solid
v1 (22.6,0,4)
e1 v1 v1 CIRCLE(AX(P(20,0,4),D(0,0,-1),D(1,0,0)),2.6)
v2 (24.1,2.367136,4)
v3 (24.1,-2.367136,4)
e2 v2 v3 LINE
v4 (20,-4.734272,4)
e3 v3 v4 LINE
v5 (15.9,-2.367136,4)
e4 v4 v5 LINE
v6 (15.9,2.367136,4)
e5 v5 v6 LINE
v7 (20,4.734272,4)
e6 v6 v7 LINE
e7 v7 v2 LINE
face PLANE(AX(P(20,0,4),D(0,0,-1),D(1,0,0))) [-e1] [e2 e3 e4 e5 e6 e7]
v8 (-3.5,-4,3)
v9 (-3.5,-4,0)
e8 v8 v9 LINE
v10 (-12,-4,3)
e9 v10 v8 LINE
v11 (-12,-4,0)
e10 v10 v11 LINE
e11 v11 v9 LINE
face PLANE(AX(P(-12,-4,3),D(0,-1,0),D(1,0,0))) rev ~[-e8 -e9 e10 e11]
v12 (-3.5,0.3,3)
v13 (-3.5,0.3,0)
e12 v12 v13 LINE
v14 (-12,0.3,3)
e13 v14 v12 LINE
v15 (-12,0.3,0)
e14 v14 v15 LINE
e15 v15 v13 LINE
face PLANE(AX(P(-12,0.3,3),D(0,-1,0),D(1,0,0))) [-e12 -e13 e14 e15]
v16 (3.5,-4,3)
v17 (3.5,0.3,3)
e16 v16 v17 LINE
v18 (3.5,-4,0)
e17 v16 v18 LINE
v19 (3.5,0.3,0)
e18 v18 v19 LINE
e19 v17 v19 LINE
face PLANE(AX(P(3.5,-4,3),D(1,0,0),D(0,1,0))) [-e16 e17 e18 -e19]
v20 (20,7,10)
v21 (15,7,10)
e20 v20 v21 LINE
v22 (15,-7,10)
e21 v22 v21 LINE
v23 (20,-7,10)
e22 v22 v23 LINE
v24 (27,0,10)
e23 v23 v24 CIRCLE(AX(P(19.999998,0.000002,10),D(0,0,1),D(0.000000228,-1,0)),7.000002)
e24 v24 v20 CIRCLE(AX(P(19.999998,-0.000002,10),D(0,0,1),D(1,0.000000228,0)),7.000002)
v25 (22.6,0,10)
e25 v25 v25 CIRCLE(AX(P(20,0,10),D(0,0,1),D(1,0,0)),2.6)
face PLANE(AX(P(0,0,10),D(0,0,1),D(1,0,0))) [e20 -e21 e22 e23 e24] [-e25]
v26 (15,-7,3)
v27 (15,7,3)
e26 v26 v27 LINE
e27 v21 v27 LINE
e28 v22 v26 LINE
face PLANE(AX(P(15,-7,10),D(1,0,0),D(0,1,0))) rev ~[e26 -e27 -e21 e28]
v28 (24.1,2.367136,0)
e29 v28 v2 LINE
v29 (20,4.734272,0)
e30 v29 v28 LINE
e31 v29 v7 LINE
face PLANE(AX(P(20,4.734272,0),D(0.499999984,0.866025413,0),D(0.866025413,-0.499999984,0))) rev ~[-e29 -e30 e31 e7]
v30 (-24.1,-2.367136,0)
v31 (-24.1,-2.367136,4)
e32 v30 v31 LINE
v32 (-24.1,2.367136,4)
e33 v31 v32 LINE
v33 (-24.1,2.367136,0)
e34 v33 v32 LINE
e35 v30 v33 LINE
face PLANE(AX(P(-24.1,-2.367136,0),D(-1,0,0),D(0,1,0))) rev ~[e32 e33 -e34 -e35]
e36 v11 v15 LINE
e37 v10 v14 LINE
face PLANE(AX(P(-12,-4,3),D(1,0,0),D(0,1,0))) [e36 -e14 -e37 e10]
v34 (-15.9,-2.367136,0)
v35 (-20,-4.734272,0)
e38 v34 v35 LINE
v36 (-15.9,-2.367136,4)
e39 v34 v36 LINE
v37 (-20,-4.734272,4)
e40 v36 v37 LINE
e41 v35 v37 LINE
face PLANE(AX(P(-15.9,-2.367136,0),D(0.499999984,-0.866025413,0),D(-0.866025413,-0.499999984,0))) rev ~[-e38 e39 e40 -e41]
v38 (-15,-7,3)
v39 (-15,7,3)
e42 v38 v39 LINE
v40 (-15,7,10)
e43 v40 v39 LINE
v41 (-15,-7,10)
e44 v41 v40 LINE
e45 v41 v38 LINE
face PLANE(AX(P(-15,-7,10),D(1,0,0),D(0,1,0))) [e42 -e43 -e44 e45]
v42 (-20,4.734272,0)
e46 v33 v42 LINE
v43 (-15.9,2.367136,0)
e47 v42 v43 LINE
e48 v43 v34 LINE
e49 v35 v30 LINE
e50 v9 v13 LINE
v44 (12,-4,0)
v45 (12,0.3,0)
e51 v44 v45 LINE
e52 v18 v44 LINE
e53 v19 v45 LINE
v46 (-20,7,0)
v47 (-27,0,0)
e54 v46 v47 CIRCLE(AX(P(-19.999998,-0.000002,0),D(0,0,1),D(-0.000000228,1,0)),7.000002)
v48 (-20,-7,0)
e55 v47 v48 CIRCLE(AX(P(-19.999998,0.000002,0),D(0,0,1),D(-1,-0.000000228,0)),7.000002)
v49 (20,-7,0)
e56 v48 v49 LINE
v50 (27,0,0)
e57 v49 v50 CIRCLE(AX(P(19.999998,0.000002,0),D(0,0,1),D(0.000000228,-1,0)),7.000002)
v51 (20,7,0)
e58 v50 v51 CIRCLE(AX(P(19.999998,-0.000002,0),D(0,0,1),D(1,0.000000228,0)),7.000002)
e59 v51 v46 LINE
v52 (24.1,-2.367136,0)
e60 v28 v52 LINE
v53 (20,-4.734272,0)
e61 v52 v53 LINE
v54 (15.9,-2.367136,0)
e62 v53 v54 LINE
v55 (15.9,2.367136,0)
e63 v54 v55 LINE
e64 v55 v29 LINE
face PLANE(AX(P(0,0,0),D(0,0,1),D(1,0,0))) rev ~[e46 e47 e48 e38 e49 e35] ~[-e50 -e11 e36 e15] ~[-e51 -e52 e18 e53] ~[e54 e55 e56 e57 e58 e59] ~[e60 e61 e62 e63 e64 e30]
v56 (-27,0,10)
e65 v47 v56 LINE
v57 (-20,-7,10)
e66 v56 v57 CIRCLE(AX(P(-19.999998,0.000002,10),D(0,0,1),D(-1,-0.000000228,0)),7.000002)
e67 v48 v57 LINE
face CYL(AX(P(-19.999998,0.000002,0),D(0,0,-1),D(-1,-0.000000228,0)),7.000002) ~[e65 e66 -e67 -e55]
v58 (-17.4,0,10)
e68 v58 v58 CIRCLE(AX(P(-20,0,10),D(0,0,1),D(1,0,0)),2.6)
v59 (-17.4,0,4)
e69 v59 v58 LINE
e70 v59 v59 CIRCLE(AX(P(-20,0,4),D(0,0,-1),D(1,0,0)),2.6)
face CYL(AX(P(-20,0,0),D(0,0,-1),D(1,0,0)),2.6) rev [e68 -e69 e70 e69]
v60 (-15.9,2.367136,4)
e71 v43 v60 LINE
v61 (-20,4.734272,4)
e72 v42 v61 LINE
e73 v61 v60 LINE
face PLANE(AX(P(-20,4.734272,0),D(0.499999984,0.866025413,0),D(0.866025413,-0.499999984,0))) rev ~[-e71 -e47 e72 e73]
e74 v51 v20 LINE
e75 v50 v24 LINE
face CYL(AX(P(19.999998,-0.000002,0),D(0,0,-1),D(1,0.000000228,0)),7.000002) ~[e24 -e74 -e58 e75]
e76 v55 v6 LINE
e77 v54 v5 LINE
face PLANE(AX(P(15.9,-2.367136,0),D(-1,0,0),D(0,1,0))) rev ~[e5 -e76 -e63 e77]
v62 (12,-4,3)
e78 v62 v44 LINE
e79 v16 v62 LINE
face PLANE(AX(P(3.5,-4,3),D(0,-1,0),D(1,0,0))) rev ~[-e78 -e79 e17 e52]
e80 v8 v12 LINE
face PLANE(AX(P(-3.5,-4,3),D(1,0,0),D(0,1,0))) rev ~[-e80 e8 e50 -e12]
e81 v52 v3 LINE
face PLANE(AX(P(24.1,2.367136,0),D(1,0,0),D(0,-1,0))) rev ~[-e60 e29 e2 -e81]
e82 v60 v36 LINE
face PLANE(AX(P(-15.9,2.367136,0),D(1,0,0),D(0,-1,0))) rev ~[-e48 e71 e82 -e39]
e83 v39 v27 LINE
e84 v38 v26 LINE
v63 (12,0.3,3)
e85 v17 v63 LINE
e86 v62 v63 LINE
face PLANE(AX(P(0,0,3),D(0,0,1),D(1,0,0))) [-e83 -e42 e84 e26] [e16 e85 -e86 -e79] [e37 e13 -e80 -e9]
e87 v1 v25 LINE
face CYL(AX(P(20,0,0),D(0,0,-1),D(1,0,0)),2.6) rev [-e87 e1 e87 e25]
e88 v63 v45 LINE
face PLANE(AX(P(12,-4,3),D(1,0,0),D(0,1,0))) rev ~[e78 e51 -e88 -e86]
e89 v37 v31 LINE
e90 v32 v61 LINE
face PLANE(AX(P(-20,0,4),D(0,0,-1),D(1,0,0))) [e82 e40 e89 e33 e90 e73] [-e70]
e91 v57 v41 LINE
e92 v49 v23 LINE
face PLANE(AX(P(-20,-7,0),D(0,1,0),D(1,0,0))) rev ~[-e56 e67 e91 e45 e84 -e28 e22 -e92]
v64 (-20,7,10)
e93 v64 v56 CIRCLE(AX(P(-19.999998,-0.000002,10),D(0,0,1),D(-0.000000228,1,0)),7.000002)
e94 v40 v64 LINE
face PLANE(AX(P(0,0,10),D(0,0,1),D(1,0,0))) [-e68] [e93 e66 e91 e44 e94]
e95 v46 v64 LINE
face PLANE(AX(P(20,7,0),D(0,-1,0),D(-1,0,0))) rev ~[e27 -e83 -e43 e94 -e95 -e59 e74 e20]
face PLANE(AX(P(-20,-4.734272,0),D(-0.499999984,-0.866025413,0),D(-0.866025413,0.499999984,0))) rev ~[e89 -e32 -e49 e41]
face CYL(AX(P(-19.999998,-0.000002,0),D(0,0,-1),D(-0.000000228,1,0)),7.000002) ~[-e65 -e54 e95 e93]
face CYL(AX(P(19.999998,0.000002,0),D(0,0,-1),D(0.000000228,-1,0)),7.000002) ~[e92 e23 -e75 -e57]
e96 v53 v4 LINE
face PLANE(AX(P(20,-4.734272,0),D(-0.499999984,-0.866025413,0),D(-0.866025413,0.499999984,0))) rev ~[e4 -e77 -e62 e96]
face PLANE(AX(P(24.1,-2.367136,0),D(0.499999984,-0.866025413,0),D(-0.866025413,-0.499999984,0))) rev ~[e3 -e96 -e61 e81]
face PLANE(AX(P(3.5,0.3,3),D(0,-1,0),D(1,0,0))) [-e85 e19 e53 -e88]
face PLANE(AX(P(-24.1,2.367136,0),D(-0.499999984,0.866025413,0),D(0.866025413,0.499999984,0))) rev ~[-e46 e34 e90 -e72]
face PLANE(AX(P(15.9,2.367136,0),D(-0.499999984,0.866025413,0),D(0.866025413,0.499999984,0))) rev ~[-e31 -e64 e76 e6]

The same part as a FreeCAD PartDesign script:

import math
import FreeCAD as App
import Part
import Sketcher
Q = App.Units.Quantity


def add_polygon(sketch, points):
    """Adds a closed chain of lines whose ends are joined by coincident constraints."""
    first, n = sketch.GeometryCount, len(points)
    for a, b in zip(points, points[1:] + points[:1]):
        sketch.addGeometry(Part.LineSegment(App.Vector(*a, 0), App.Vector(*b, 0)), False)
    for i in range(n):
        sketch.addConstraint(Sketcher.Constraint("Coincident", first + i, 2, first + (i + 1) % n, 1))

doc = App.newDocument("Part")
body = doc.addObject("PartDesign::Body", "Body")

# Sketch on XY plane
sketch1 = doc.addObject("Sketcher::SketchObject", "Sketch")
body.addObject(sketch1)
sketch1.AttachmentSupport = (doc.XY_Plane, [""])
sketch1.MapMode = "FlatFace"
sketch1.addGeometry(Part.ArcOfCircle(Part.Circle(App.Vector(20, 0, 0), App.Vector(0, 0, 1), 7), math.radians(0), math.radians(90)), False)
sketch1.addGeometry(Part.LineSegment(App.Vector(20, 7, 0), App.Vector(-20, 7, 0)), False)
sketch1.addGeometry(Part.ArcOfCircle(Part.Circle(App.Vector(-20, 0, 0), App.Vector(0, 0, 1), 7), math.radians(90), math.radians(180)), False)
sketch1.addGeometry(Part.ArcOfCircle(Part.Circle(App.Vector(-20, 0, 0), App.Vector(0, 0, 1), 7), math.radians(-180), math.radians(-90)), False)
sketch1.addGeometry(Part.LineSegment(App.Vector(-20, -7, 0), App.Vector(20, -7, 0)), False)
sketch1.addGeometry(Part.ArcOfCircle(Part.Circle(App.Vector(20, 0, 0), App.Vector(0, 0, 1), 7), math.radians(-90), math.radians(0)), False)
sketch1.addGeometry(Part.Circle(App.Vector(-20, 0, 0), App.Vector(0, 0, 1), 2.6), False)
sketch1.addGeometry(Part.Circle(App.Vector(20, 0, 0), App.Vector(0, 0, 1), 2.6), False)
sketch1.addConstraint(Sketcher.Constraint("Tangent", 0, 2, 1, 1))
sketch1.addConstraint(Sketcher.Constraint("Tangent", 1, 2, 2, 1))
sketch1.addConstraint(Sketcher.Constraint("Tangent", 2, 2, 3, 1))
sketch1.addConstraint(Sketcher.Constraint("Tangent", 3, 2, 4, 1))
sketch1.addConstraint(Sketcher.Constraint("Tangent", 4, 2, 5, 1))
sketch1.addConstraint(Sketcher.Constraint("Tangent", 5, 2, 0, 1))
sketch1.addConstraint(Sketcher.Constraint("Horizontal", 1))
sketch1.addConstraint(Sketcher.Constraint("Horizontal", 4))
sketch1.addConstraint(Sketcher.Constraint("Coincident", 6, 3, 2, 3))
sketch1.addConstraint(Sketcher.Constraint("Coincident", 7, 3, 0, 3))
sketch1.addConstraint(Sketcher.Constraint("Equal", 0, 2))
sketch1.addConstraint(Sketcher.Constraint("Equal", 2, 3))
sketch1.addConstraint(Sketcher.Constraint("Equal", 6, 7))
sketch1.addConstraint(Sketcher.Constraint("Symmetric", 0, 3, 2, 3, -1, 1))
sketch1.addConstraint(Sketcher.Constraint("PointOnObject", 2, 2, -1))
sketch1.addConstraint(Sketcher.Constraint("PointOnObject", 5, 2, -1))
sketch1.addConstraint(Sketcher.Constraint("Radius", 0, Q("7.000002 mm")))
sketch1.addConstraint(Sketcher.Constraint("Diameter", 6, Q("5.2 mm")))
sketch1.addConstraint(Sketcher.Constraint("DistanceX", 1, 2, 1, 1, Q("40 mm")))
pad1 = doc.addObject("PartDesign::Pad", "Pad")
body.addObject(pad1)
pad1.Profile = sketch1
pad1.Length = 10

# Sketch on XY plane
sketch2 = doc.addObject("Sketcher::SketchObject", "Sketch001")
body.addObject(sketch2)
sketch2.AttachmentSupport = (doc.XY_Plane, [""])
sketch2.MapMode = "FlatFace"
sketch2.AttachmentOffset = App.Placement(App.Vector(0, 0, 10), App.Rotation())
add_polygon(sketch2, [(-15, 7), (-15, -7), (15, -7), (15, 7)])  # lines 0-3
sketch2.addConstraint(Sketcher.Constraint("Vertical", 0))
sketch2.addConstraint(Sketcher.Constraint("Horizontal", 1))
sketch2.addConstraint(Sketcher.Constraint("Vertical", 2))
sketch2.addConstraint(Sketcher.Constraint("Horizontal", 3))
sketch2.addConstraint(Sketcher.Constraint("Symmetric", 0, 2, 2, 2, -1, 1))
sketch2.addConstraint(Sketcher.Constraint("DistanceX", 1, 1, 1, 2, Q("30 mm")))
sketch2.addConstraint(Sketcher.Constraint("DistanceY", 0, 2, 0, 1, Q("14 mm")))
pocket1 = doc.addObject("PartDesign::Pocket", "Pocket")
body.addObject(pocket1)
pocket1.Profile = sketch2
pocket1.Length = 7

# Sketch on XY plane
sketch3 = doc.addObject("Sketcher::SketchObject", "Sketch002")
body.addObject(sketch3)
sketch3.AttachmentSupport = (doc.XY_Plane, [""])
sketch3.MapMode = "FlatFace"
sketch3.AttachmentOffset = App.Placement(App.Vector(0, 0, 3), App.Rotation())
add_polygon(sketch3, [(-12, 0.3), (-12, -4), (-3.5, -4), (-3.5, 0.3)])  # lines 0-3
add_polygon(sketch3, [(3.5, 0.3), (3.5, -4), (12, -4), (12, 0.3)])  # lines 4-7
sketch3.addConstraint(Sketcher.Constraint("Vertical", 0))
sketch3.addConstraint(Sketcher.Constraint("Horizontal", 1))
sketch3.addConstraint(Sketcher.Constraint("Vertical", 2))
sketch3.addConstraint(Sketcher.Constraint("Horizontal", 3))
sketch3.addConstraint(Sketcher.Constraint("Vertical", 4))
sketch3.addConstraint(Sketcher.Constraint("Horizontal", 5))
sketch3.addConstraint(Sketcher.Constraint("Vertical", 6))
sketch3.addConstraint(Sketcher.Constraint("Horizontal", 7))
sketch3.addConstraint(Sketcher.Constraint("Symmetric", 1, 2, 4, 2, -2))
sketch3.addConstraint(Sketcher.Constraint("Symmetric", 3, 2, 6, 2, -2))
sketch3.addConstraint(Sketcher.Constraint("DistanceX", 1, 1, 1, 2, Q("8.5 mm")))
sketch3.addConstraint(Sketcher.Constraint("DistanceY", 0, 2, 0, 1, Q("4.3 mm")))
sketch3.addConstraint(Sketcher.Constraint("DistanceX", 0, 2, -1, 1, Q("12 mm")))
sketch3.addConstraint(Sketcher.Constraint("DistanceY", 0, 2, -1, 1, Q("4 mm")))
pocket2 = doc.addObject("PartDesign::Pocket", "Pocket001")
body.addObject(pocket2)
pocket2.Profile = sketch3
pocket2.Length = 25

# Sketch on XY plane
sketch4 = doc.addObject("Sketcher::SketchObject", "Sketch003")
body.addObject(sketch4)
sketch4.AttachmentSupport = (doc.XY_Plane, [""])
sketch4.MapMode = "FlatFace"
add_polygon(sketch4, [(-15.9, 2.4), (-15.9, -2.4), (-20, -4.7), (-24.1, -2.4), (-24.1, 2.4), (-20, 4.7)])  # lines 0-5
sketch4.addGeometry(Part.Circle(App.Vector(-20, 0, 0), App.Vector(0, 0, 1), 2.6), False)  # 6
add_polygon(sketch4, [(15.9, -2.4), (15.9, 2.4), (20, 4.7), (24.1, 2.4), (24.1, -2.4), (20, -4.7)])  # lines 7-12
sketch4.addGeometry(Part.Circle(App.Vector(20, 0, 0), App.Vector(0, 0, 1), 2.6), False)  # 13
sketch4.addConstraint(Sketcher.Constraint("Vertical", 0))
sketch4.addConstraint(Sketcher.Constraint("Vertical", 3))
sketch4.addConstraint(Sketcher.Constraint("Vertical", 7))
sketch4.addConstraint(Sketcher.Constraint("Vertical", 10))
sketch4.addConstraint(Sketcher.Constraint("Equal", 6, 13))
sketch4.addConstraint(Sketcher.Constraint("Symmetric", 6, 3, 13, 3, -1, 1))
sketch4.addConstraint(Sketcher.Constraint("Symmetric", 0, 2, 7, 2, -1, 1))
sketch4.addConstraint(Sketcher.Constraint("Symmetric", 1, 2, 8, 2, -1, 1))
sketch4.addConstraint(Sketcher.Constraint("Symmetric", 2, 2, 9, 2, -1, 1))
sketch4.addConstraint(Sketcher.Constraint("Symmetric", 4, 2, 11, 2, -1, 1))
sketch4.addConstraint(Sketcher.Constraint("Symmetric", 4, 2, 8, 2, -2))
sketch4.addConstraint(Sketcher.Constraint("PointOnObject", 6, 3, -1))
sketch4.addConstraint(Sketcher.Constraint("Parallel", 1, 4))
sketch4.addConstraint(Sketcher.Constraint("Parallel", 2, 5))
sketch4.addConstraint(Sketcher.Constraint("Parallel", 8, 11))
sketch4.addConstraint(Sketcher.Constraint("Parallel", 9, 12))
sketch4.addConstraint(Sketcher.Constraint("Horizontal", 0, 2, 2, 2))
sketch4.addConstraint(Sketcher.Constraint("Horizontal", 3, 2, 5, 2))
sketch4.addConstraint(Sketcher.Constraint("Vertical", 6, 3, 1, 2))
sketch4.addConstraint(Sketcher.Constraint("Diameter", 6, Q("5.2 mm")))
sketch4.addConstraint(Sketcher.Constraint("Angle", 1, Q("-150.000001 deg")))
sketch4.addConstraint(Sketcher.Constraint("DistanceX", 6, 3, -1, 1, Q("20 mm")))
sketch4.addConstraint(Sketcher.Constraint("DistanceX", 0, 2, -1, 1, Q("15.9 mm")))
sketch4.addConstraint(Sketcher.Constraint("DistanceY", 0, 2, 0, 1, Q("4.734272 mm")))
pocket3 = doc.addObject("PartDesign::Pocket", "Pocket002")
body.addObject(pocket3)
pocket3.Profile = sketch4
pocket3.Length = 4
pocket3.Reversed = True

doc.recompute()
